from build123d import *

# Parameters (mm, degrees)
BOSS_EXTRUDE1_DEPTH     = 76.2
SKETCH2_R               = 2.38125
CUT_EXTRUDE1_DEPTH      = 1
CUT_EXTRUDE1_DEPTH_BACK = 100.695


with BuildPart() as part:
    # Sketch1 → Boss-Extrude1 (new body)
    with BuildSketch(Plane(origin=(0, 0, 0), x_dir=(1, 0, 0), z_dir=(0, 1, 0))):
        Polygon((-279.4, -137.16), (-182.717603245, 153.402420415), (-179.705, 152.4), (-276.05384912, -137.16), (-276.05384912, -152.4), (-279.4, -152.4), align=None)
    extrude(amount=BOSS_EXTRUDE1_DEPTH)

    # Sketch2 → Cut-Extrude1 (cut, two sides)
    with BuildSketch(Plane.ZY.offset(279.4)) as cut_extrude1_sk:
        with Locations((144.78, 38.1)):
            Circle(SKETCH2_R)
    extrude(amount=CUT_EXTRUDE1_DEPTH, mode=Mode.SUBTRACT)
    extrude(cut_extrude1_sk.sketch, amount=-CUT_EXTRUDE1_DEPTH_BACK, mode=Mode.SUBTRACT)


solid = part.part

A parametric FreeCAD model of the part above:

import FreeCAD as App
import Part
import Sketcher

V = App.Vector
Q = App.Units.Quantity

doc = App.newDocument("Part")
params = doc.addObject("Spreadsheet::Sheet", "Params")
for row, (alias, value) in enumerate([
    ("sketch1_height", "0.6 in"),
    ("sketch1_length", "0.125 in"),
    ("pad1_length", "3 in"),
    ("sketch2_diameter", "0.1875 in"),
], start=1):
    params.set(f"A{row}", alias)
    params.set(f"B{row}", "=" + value)
    params.setAlias(f"B{row}", alias)

body = doc.addObject("PartDesign::Body", "Body")

# Sketch on XZ plane
sketch1 = body.newObject("Sketcher::SketchObject", "Sketch")
sketch1.AttachmentSupport = (doc.getObject("XZ_Plane"), [""])
sketch1.MapMode = "FlatFace"
sketch1.addGeometry([
    Part.LineSegment(V(-182.7, -153.4, 0), V(-279.4, 137.2, 0)),  # 0
    Part.LineSegment(V(-279.4, 137.2, 0), V(-279.4, 152.4, 0)),  # 1
    Part.LineSegment(V(-279.4, 152.4, 0), V(-276.1, 152.4, 0)),  # 2
    Part.LineSegment(V(-276.1, 152.4, 0), V(-276.1, 137.2, 0)),  # 3
    Part.LineSegment(V(-276.1, 137.2, 0), V(-179.7, -152.4, 0)),  # 4
    Part.LineSegment(V(-179.7, -152.4, 0), V(-182.7, -153.4, 0)),  # 5
], False)
sketch1.addConstraint([
    Sketcher.Constraint("Coincident", 0, 2, 1, 1),
    Sketcher.Constraint("Coincident", 1, 2, 2, 1),
    Sketcher.Constraint("Coincident", 2, 2, 3, 1),
    Sketcher.Constraint("Coincident", 3, 2, 4, 1),
    Sketcher.Constraint("Coincident", 4, 2, 5, 1),
    Sketcher.Constraint("Coincident", 5, 2, 0, 1),
    Sketcher.Constraint("Vertical", 1),
    Sketcher.Constraint("Horizontal", 2),
    Sketcher.Constraint("Vertical", 3),
    Sketcher.Constraint("Parallel", 0, 4),
    Sketcher.Constraint("Perpendicular", 4, 5),
    Sketcher.Constraint("Horizontal", 0, 2, 3, 2),
    Sketcher.Constraint("DistanceY", 1, 1, 1, 2, Q("0.6 in")),
    Sketcher.Constraint("DistanceX", 0, 2, -1, 1, Q("11 in")),
    Sketcher.Constraint("DistanceY", -1, 1, 1, 2, Q("6 in")),
    Sketcher.Constraint("DistanceY", 4, 2, -1, 1, Q("6 in")),
    Sketcher.Constraint("Distance", 5, Q("0.125 in")),
    Sketcher.Constraint("DistanceX", 4, 2, -1, 1, Q("7.075 in")),
])
sketch1.setExpression("Constraints[12]", "Params.sketch1_height")
sketch1.setExpression("Constraints[16]", "Params.sketch1_length")
pad1 = body.newObject("PartDesign::Pad", "Pad")
pad1.Profile = sketch1
pad1.setExpression("Length", "Params.pad1_length")
pad1.Reversed = True

# Sketch on YZ plane
sketch2 = body.newObject("Sketcher::SketchObject", "Sketch001")
sketch2.AttachmentSupport = (doc.getObject("YZ_Plane"), [""])
sketch2.MapMode = "FlatFace"
sketch2.AttachmentOffset = App.Placement(V(0, 0, -11 * 25.4), App.Rotation())
sketch2.addGeometry(Part.Circle(V(38.1, 144.8, 0), V(0, 0, 1), 2.4), False)
sketch2.addConstraint([
    Sketcher.Constraint("Diameter", 0, Q("0.1875 in")),
    Sketcher.Constraint("DistanceX", -1, 1, 0, 3, Q("1.5 in")),
    Sketcher.Constraint("DistanceY", -1, 1, 0, 3, Q("5.7 in")),
])
sketch2.setExpression("Constraints[0]", "Params.sketch2_diameter")
pocket1 = body.newObject("PartDesign::Pocket", "Pocket")
pocket1.Profile = sketch2
pocket1.Type = "ThroughAll"
pocket1.Midplane = True

doc.recompute()
